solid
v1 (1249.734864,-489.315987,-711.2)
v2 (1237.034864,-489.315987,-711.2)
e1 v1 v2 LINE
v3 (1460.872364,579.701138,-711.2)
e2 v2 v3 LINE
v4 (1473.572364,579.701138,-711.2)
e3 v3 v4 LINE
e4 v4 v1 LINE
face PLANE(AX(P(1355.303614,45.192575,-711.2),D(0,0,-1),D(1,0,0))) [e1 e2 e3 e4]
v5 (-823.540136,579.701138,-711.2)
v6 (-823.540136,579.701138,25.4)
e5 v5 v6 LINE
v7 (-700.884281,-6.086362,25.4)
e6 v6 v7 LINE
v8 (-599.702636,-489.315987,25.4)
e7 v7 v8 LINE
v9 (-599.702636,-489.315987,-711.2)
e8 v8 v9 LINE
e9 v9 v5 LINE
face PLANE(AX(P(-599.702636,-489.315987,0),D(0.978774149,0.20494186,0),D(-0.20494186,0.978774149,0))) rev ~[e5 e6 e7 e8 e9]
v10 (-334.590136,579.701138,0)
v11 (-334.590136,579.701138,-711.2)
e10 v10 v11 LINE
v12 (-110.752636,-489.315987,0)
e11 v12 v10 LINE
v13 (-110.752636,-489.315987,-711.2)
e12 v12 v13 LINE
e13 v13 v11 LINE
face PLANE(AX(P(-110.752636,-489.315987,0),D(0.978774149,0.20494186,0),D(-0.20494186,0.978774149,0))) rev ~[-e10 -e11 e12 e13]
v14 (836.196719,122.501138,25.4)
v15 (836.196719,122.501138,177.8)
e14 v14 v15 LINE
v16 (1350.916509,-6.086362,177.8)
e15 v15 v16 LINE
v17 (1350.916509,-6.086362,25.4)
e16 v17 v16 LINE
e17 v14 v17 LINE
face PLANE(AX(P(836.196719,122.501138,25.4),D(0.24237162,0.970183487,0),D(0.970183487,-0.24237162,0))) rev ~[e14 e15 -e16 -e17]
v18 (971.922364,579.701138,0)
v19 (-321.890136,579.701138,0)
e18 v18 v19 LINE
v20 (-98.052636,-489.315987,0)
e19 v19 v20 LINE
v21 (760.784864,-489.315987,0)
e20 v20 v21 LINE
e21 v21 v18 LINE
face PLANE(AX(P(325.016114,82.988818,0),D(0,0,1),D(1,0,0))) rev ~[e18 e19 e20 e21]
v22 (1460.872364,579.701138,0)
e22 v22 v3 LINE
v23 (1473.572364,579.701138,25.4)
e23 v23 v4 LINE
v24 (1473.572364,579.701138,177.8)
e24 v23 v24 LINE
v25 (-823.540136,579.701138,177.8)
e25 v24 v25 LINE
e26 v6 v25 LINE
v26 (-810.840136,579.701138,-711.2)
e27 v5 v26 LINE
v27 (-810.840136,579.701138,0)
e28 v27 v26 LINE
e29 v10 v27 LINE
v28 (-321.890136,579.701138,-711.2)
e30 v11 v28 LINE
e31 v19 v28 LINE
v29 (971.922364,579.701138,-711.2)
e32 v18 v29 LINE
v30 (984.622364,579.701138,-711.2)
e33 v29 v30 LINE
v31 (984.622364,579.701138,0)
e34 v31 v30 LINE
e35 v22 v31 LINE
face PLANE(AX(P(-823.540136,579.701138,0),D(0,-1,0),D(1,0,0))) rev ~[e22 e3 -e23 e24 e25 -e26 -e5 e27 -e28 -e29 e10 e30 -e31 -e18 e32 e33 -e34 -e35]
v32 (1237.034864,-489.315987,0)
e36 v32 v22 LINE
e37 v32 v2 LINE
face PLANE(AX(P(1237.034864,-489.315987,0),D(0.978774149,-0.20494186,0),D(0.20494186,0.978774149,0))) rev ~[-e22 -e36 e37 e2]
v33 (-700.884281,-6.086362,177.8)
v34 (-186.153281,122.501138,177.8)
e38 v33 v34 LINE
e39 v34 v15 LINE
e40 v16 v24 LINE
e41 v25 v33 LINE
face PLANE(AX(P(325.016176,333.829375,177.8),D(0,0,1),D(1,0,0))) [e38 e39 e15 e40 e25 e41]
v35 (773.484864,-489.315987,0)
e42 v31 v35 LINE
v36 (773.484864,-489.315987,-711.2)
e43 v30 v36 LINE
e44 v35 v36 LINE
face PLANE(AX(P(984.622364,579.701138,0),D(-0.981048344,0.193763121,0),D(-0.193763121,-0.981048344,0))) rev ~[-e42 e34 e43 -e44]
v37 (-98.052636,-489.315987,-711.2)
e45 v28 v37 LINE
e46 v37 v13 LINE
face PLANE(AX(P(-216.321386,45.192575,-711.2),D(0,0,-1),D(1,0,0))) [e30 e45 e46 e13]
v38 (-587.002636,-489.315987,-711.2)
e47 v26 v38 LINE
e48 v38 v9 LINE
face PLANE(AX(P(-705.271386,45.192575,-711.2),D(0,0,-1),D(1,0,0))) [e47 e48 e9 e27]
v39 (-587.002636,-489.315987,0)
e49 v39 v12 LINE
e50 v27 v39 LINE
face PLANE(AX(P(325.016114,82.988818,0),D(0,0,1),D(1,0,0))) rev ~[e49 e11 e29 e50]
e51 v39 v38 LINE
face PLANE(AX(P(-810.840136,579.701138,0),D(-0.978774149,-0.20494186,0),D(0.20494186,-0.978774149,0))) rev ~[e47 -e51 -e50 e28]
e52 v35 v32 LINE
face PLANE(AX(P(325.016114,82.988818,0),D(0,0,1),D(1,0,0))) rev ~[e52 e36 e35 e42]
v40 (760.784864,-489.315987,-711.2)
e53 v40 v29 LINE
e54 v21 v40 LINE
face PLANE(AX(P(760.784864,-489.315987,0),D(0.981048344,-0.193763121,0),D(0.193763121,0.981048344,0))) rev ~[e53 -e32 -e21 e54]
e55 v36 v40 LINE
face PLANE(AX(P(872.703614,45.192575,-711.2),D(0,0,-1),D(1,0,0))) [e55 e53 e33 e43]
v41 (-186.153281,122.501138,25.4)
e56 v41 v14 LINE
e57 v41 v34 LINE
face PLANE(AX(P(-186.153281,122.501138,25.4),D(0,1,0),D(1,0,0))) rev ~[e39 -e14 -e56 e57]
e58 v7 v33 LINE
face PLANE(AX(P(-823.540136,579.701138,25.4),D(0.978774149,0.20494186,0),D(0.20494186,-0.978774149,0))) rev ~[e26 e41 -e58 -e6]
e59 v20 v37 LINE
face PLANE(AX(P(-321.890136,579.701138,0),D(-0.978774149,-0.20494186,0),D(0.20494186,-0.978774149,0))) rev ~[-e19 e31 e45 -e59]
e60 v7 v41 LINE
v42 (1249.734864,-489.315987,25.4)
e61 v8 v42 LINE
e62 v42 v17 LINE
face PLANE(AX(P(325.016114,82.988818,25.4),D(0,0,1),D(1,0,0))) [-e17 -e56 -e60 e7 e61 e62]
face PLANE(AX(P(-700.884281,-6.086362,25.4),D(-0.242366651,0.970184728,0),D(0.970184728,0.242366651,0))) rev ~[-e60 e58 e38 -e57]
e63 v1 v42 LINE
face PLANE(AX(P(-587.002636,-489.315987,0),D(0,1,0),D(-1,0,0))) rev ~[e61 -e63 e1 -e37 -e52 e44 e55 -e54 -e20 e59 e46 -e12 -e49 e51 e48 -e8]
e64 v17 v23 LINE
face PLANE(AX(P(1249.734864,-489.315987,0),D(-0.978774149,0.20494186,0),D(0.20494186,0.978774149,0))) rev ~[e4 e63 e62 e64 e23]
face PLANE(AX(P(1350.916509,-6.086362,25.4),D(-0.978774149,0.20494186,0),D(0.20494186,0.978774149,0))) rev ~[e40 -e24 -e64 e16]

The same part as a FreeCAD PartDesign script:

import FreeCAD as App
import Part
import Sketcher
Q = App.Units.Quantity

doc = App.newDocument("Part")
body = doc.addObject("PartDesign::Body", "Body")

# Sketch on XY plane
sketch1 = doc.addObject("Sketcher::SketchObject", "Sketch")
body.addObject(sketch1)
sketch1.AttachmentSupport = (doc.XY_Plane, [""])
sketch1.MapMode = "FlatFace"
sketch1.addGeometry([
    Part.LineSegment(App.Vector(-824, 580, 0), App.Vector(-600, -489, 0)),
    Part.LineSegment(App.Vector(-600, -489, 0), App.Vector(1250, -489, 0)),
    Part.LineSegment(App.Vector(1250, -489, 0), App.Vector(1474, 580, 0)),
    Part.LineSegment(App.Vector(1474, 580, 0), App.Vector(-824, 580, 0)),
], False)
sketch1.addConstraint([
    Sketcher.Constraint("Coincident", 0, 2, 1, 1),
    Sketcher.Constraint("Coincident", 1, 2, 2, 1),
    Sketcher.Constraint("Coincident", 2, 2, 3, 1),
    Sketcher.Constraint("Coincident", 3, 2, 0, 1),
    Sketcher.Constraint("Horizontal", 1),
    Sketcher.Constraint("Horizontal", 3),
    Sketcher.Constraint("Equal", 0, 2),
    Sketcher.Constraint("Distance", 0, Q("43 in")),
    Sketcher.Constraint("DistanceX", 1, 1, 1, 2, Q("72.8125 in")),
    Sketcher.Constraint("DistanceX", 3, 2, 3, 1, Q("90.4375 in")),
    Sketcher.Constraint("DistanceY", -1, 1, 2, 2, 579.701138),
    Sketcher.Constraint("DistanceX", 0, 2, -1, 1, 599.702636),
])
pad1 = doc.addObject("PartDesign::Pad", "Pad")
body.addObject(pad1)
pad1.Profile = sketch1
pad1.Length = Q("1 in")

# Sketch on XY plane
sketch2 = doc.addObject("Sketcher::SketchObject", "Sketch001")
body.addObject(sketch2)
sketch2.AttachmentSupport = (doc.XY_Plane, [""])
sketch2.MapMode = "FlatFace"
sketch2.AttachmentOffset = App.Placement(App.Vector(0, 0, 1 * 25.4), App.Rotation())
sketch2.addGeometry([
    Part.LineSegment(App.Vector(1474, 580, 0), App.Vector(-824, 580, 0)),  # 0
    Part.LineSegment(App.Vector(-824, 580, 0), App.Vector(-701, -6, 0)),  # 1
    Part.LineSegment(App.Vector(-701, -6, 0), App.Vector(-186, 123, 0)),  # 2
    Part.LineSegment(App.Vector(-186, 123, 0), App.Vector(836, 123, 0)),  # 3
    Part.LineSegment(App.Vector(836, 123, 0), App.Vector(1351, -6, 0)),  # 4
    Part.LineSegment(App.Vector(1351, -6, 0), App.Vector(1474, 580, 0)),  # 5
], False)
sketch2.addConstraint([
    Sketcher.Constraint("Coincident", 0, 2, 1, 1),
    Sketcher.Constraint("Coincident", 1, 2, 2, 1),
    Sketcher.Constraint("Coincident", 2, 2, 3, 1),
    Sketcher.Constraint("Coincident", 3, 2, 4, 1),
    Sketcher.Constraint("Coincident", 4, 2, 5, 1),
    Sketcher.Constraint("Coincident", 5, 2, 0, 1),
    Sketcher.Constraint("Horizontal", 0),
    Sketcher.Constraint("Horizontal", 3),
    Sketcher.Constraint("Horizontal", 1, 2, 4, 2),
    Sketcher.Constraint("Equal", 1, 5),
    Sketcher.Constraint("DistanceY", 2, 2, 0, 2, Q("18 in")),
    Sketcher.Constraint("DistanceX", 3, 1, 3, 2, Q("40.25 in")),
    Sketcher.Constraint("DistanceX", 0, 2, 0, 1, Q("90.4375 in")),
    Sketcher.Constraint("DistanceY", 1, 2, 0, 2, Q("23.0625 in")),
    Sketcher.Constraint("DistanceX", 1, 2, 2, 2, Q("20.265 in")),
    Sketcher.Constraint("Distance", 4, 530.538601),
    Sketcher.Constraint("DistanceY", -1, 1, 0, 2, 579.701138),
    Sketcher.Constraint("DistanceX", 1, 2, -1, 1, 700.884281),
])
pad2 = doc.addObject("PartDesign::Pad", "Pad001")
body.addObject(pad2)
pad2.Profile = sketch2
pad2.Length = Q("6 in")

# Sketch on XY plane
sketch3 = doc.addObject("Sketcher::SketchObject", "Sketch002")
body.addObject(sketch3)
sketch3.AttachmentSupport = (doc.XY_Plane, [""])
sketch3.MapMode = "FlatFace"
sketch3.addGeometry([
    Part.LineSegment(App.Vector(-811, 580, 0), App.Vector(-587, -489, 0)),  # 0
    Part.LineSegment(App.Vector(-587, -489, 0), App.Vector(-600, -489, 0)),  # 1
    Part.LineSegment(App.Vector(-600, -489, 0), App.Vector(-824, 580, 0)),  # 2
    Part.LineSegment(App.Vector(-824, 580, 0), App.Vector(-811, 580, 0)),  # 3
    Part.LineSegment(App.Vector(-322, 580, 0), App.Vector(-98, -489, 0)),  # 4
    Part.LineSegment(App.Vector(-98, -489, 0), App.Vector(-111, -489, 0)),  # 5
    Part.LineSegment(App.Vector(-111, -489, 0), App.Vector(-335, 580, 0)),  # 6
    Part.LineSegment(App.Vector(-335, 580, 0), App.Vector(-322, 580, 0)),  # 7
    Part.LineSegment(App.Vector(985, 580, 0), App.Vector(773, -489, 0)),  # 8
    Part.LineSegment(App.Vector(773, -489, 0), App.Vector(761, -489, 0)),  # 9
    Part.LineSegment(App.Vector(761, -489, 0), App.Vector(972, 580, 0)),  # 10
    Part.LineSegment(App.Vector(972, 580, 0), App.Vector(985, 580, 0)),  # 11
    Part.LineSegment(App.Vector(1474, 580, 0), App.Vector(1250, -489, 0)),  # 12
    Part.LineSegment(App.Vector(1250, -489, 0), App.Vector(1237, -489, 0)),  # 13
    Part.LineSegment(App.Vector(1237, -489, 0), App.Vector(1461, 580, 0)),  # 14
    Part.LineSegment(App.Vector(1461, 580, 0), App.Vector(1474, 580, 0)),  # 15
], False)
sketch3.addConstraint([
    Sketcher.Constraint("Coincident", 0, 2, 1, 1),
    Sketcher.Constraint("Coincident", 1, 2, 2, 1),
    Sketcher.Constraint("Coincident", 2, 2, 3, 1),
    Sketcher.Constraint("Coincident", 3, 2, 0, 1),
    Sketcher.Constraint("Coincident", 4, 2, 5, 1),
    Sketcher.Constraint("Coincident", 5, 2, 6, 1),
    Sketcher.Constraint("Coincident", 6, 2, 7, 1),
    Sketcher.Constraint("Coincident", 7, 2, 4, 1),
    Sketcher.Constraint("Coincident", 8, 2, 9, 1),
    Sketcher.Constraint("Coincident", 9, 2, 10, 1),
    Sketcher.Constraint("Coincident", 10, 2, 11, 1),
    Sketcher.Constraint("Coincident", 11, 2, 8, 1),
    Sketcher.Constraint("Coincident", 12, 2, 13, 1),
    Sketcher.Constraint("Coincident", 13, 2, 14, 1),
    Sketcher.Constraint("Coincident", 14, 2, 15, 1),
    Sketcher.Constraint("Coincident", 15, 2, 12, 1),
    Sketcher.Constraint("Horizontal", 1),
    Sketcher.Constraint("Horizontal", 3),
    Sketcher.Constraint("Horizontal", 5),
    Sketcher.Constraint("Horizontal", 7),
    Sketcher.Constraint("Horizontal", 9),
    Sketcher.Constraint("Horizontal", 11),
    Sketcher.Constraint("Horizontal", 13),
    Sketcher.Constraint("Horizontal", 15),
    Sketcher.Constraint("Parallel", 0, 2),
    Sketcher.Constraint("Parallel", 2, 4),
    Sketcher.Constraint("Parallel", 4, 6),
    Sketcher.Constraint("Parallel", 8, 10),
    Sketcher.Constraint("Parallel", 12, 14),
    Sketcher.Constraint("Horizontal", 1, 2, 4, 2),
    Sketcher.Constraint("Horizontal", 3, 2, 6, 2),
    Sketcher.Constraint("Horizontal", 5, 2, 8, 2),
    Sketcher.Constraint("Horizontal", 7, 2, 10, 2),
    Sketcher.Constraint("Horizontal", 9, 2, 12, 2),
    Sketcher.Constraint("Horizontal", 11, 2, 14, 2),
    Sketcher.Constraint("Equal", 3, 5),
    Sketcher.Constraint("Equal", 7, 9),
    Sketcher.Constraint("Equal", 11, 13),
    Sketcher.Constraint("Equal", 6, 12),
    Sketcher.Constraint("Distance", 0, Q("43 in")),
    Sketcher.Constraint("DistanceX", 1, 2, 1, 1, Q("0.5 in")),
    Sketcher.Constraint("DistanceX", 0, 2, 4, 2, Q("19.25 in")),
    Sketcher.Constraint("DistanceX", 8, 2, 12, 2, Q("18.75 in")),
    Sketcher.Constraint("DistanceX", 11, 2, 14, 2, Q("18.75 in")),
    Sketcher.Constraint("DistanceX", 2, 2, 1, 2, Q("8.8125 in")),
    Sketcher.Constraint("DistanceX", 4, 2, 8, 2, Q("34.3125 in")),
    Sketcher.Constraint("DistanceY", -1, 1, 2, 2, 579.701138),
    Sketcher.Constraint("DistanceX", 0, 2, -1, 1, 587.002636),
])
pad3 = doc.addObject("PartDesign::Pad", "Pad002")
body.addObject(pad3)
pad3.Profile = sketch3
pad3.Length = Q("28 in")
pad3.Reversed = True

doc.recompute()
